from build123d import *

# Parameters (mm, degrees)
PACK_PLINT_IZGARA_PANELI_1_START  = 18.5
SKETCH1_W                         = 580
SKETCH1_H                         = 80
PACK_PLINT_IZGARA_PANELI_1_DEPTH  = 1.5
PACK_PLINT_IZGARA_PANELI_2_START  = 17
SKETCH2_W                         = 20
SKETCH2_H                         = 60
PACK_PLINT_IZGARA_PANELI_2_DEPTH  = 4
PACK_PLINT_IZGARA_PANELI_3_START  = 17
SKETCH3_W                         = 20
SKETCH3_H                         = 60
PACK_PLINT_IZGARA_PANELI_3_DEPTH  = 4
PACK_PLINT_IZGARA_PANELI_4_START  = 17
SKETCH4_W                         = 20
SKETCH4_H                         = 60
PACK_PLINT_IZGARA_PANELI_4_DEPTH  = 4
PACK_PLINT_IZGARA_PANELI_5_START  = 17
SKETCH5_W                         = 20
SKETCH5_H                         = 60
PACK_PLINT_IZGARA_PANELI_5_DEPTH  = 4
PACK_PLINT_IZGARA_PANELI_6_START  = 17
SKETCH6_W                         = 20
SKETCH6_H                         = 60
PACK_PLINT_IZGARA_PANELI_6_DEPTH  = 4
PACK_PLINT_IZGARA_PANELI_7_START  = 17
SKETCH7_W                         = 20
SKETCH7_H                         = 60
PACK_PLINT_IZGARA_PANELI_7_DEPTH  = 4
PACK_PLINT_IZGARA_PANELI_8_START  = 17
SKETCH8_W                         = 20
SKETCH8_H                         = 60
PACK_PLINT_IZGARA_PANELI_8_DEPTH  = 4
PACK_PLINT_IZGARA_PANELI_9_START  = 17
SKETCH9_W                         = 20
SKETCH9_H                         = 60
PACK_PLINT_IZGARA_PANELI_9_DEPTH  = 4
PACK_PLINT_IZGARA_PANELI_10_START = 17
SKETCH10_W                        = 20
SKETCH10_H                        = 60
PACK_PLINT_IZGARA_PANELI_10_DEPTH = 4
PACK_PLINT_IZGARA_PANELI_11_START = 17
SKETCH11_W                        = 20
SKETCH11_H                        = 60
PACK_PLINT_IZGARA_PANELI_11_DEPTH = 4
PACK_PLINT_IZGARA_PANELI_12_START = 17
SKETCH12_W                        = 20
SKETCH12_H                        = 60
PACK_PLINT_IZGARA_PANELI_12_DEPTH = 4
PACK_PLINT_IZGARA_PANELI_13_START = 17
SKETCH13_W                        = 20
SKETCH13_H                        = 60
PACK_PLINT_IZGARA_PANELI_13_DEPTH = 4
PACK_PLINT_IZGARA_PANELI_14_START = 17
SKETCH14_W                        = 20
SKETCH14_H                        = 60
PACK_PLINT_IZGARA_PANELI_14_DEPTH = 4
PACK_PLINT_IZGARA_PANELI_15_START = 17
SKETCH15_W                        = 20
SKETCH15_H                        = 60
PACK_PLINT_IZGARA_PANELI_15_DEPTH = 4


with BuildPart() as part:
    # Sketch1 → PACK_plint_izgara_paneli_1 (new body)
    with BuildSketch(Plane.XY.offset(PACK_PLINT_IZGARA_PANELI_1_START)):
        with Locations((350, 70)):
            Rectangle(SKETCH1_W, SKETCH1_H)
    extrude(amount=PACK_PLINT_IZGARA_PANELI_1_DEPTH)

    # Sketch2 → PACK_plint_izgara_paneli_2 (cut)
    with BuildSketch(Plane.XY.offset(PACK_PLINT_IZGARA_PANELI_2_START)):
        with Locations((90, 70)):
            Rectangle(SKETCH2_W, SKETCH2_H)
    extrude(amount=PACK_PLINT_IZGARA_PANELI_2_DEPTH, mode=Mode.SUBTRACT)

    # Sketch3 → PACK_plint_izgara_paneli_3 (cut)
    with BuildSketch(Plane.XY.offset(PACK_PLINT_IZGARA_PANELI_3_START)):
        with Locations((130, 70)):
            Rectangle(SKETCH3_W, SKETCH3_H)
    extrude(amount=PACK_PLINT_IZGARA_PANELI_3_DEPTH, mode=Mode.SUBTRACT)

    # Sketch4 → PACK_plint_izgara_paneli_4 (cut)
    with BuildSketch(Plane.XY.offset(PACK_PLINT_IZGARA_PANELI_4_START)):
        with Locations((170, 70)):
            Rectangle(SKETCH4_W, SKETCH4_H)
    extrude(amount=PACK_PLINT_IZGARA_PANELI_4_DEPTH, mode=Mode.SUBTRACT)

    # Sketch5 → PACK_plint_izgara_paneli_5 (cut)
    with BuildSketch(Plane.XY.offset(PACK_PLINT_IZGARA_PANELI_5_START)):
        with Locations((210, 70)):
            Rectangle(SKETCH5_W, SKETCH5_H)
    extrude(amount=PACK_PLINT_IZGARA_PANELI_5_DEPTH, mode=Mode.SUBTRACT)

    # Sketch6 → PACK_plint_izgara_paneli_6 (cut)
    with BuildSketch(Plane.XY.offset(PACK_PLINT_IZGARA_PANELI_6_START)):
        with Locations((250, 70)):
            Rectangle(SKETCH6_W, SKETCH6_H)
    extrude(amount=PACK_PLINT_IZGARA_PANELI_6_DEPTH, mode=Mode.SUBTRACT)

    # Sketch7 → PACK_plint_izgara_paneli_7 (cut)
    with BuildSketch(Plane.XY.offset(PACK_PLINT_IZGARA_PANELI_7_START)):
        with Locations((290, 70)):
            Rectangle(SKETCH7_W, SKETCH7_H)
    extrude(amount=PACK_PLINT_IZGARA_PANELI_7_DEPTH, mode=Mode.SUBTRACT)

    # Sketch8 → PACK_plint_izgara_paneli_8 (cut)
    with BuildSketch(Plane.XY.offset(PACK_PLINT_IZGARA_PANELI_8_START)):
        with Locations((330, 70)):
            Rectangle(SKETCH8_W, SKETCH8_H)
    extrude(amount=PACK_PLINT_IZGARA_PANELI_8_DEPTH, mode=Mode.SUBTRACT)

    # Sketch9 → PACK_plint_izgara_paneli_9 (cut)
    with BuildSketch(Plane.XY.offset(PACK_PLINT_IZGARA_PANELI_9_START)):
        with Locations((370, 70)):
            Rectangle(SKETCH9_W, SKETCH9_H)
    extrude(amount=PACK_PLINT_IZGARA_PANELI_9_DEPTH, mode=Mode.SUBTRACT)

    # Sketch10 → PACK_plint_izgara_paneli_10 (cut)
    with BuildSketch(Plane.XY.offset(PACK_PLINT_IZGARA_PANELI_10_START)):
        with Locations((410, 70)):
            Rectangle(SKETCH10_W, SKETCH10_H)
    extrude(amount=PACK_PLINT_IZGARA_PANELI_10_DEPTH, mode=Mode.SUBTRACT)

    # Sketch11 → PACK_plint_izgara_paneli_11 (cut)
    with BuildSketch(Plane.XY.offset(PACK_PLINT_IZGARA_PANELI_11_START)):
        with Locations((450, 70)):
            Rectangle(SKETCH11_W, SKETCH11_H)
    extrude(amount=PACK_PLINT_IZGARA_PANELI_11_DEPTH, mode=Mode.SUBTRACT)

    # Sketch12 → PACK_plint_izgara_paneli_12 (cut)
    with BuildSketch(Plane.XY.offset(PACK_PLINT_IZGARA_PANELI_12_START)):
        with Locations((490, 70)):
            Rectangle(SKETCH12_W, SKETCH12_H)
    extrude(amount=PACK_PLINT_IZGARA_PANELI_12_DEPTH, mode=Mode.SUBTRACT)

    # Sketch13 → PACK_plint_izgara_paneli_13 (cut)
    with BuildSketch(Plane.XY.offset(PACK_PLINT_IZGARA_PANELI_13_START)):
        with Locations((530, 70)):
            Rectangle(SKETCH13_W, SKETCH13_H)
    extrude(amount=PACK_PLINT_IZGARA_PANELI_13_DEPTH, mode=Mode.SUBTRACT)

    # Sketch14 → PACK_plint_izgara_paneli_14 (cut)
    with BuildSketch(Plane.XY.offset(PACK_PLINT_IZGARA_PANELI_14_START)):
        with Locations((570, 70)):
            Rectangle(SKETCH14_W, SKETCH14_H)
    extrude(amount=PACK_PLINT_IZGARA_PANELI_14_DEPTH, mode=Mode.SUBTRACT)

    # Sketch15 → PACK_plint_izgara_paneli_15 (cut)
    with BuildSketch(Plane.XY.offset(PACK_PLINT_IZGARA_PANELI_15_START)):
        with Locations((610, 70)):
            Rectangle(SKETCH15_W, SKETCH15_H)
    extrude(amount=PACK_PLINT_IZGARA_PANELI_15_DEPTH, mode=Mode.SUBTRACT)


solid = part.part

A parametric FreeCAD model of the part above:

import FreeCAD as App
import Part
import Sketcher
from FreeCAD import Vector
Q = App.Units.Quantity


def add_polygon(sketch, points):
    """Adds a closed chain of lines whose ends are joined by coincident constraints."""
    first, n = sketch.GeometryCount, len(points)
    for a, b in zip(points, points[1:] + points[:1]):
        sketch.addGeometry(Part.LineSegment(App.Vector(*a, 0), App.Vector(*b, 0)), False)
    for i in range(n):
        sketch.addConstraint(Sketcher.Constraint("Coincident", first + i, 2, first + (i + 1) % n, 1))

doc = App.newDocument("Part")
params = doc.addObject("Spreadsheet::Sheet", "Params")
for row, (alias, value) in enumerate([
    ("sketch1_width", "580 mm"),
    ("sketch1_height", "80 mm"),
    ("pad1_length", "1.5 mm"),
    ("sketch2_width", "20 mm"),
    ("sketch2_height", "60 mm"),
    ("pocket1_length", "4 mm"),
    ("sketch3_width", "20 mm"),
    ("sketch3_height", "60 mm"),
    ("pocket2_length", "4 mm"),
    ("sketch4_width", "20 mm"),
    ("sketch4_height", "60 mm"),
    ("pocket3_length", "4 mm"),
    ("sketch5_width", "20 mm"),
    ("sketch5_height", "60 mm"),
    ("pocket4_length", "4 mm"),
    ("sketch6_width", "20 mm"),
    ("sketch6_height", "60 mm"),
    ("pocket5_length", "4 mm"),
    ("sketch7_width", "20 mm"),
    ("sketch7_height", "60 mm"),
    ("pocket6_length", "4 mm"),
    ("sketch8_width", "20 mm"),
    ("sketch8_height", "60 mm"),
    ("pocket7_length", "4 mm"),
    ("sketch9_width", "20 mm"),
    ("sketch9_height", "60 mm"),
    ("pocket8_length", "4 mm"),
    ("sketch10_width", "20 mm"),
    ("sketch10_height", "60 mm"),
    ("pocket9_length", "4 mm"),
    ("sketch11_width", "20 mm"),
    ("sketch11_height", "60 mm"),
    ("pocket10_length", "4 mm"),
    ("sketch12_width", "20 mm"),
    ("sketch12_height", "60 mm"),
    ("pocket11_length", "4 mm"),
    ("sketch13_width", "20 mm"),
    ("sketch13_height", "60 mm"),
    ("pocket12_length", "4 mm"),
    ("sketch14_width", "20 mm"),
    ("sketch14_height", "60 mm"),
    ("pocket13_length", "4 mm"),
    ("sketch15_width", "20 mm"),
    ("sketch15_height", "60 mm"),
    ("pocket14_length", "4 mm"),
], start=1):
    params.set(f"A{row}", alias)
    params.set(f"B{row}", "=" + value)
    params.setAlias(f"B{row}", alias)

body = doc.addObject("PartDesign::Body", "Body")

# Sketch on XY plane
sketch1 = body.newObject("Sketcher::SketchObject", "Sketch")
sketch1.AttachmentSupport = (doc.getObject("XY_Plane"), [""])
sketch1.MapMode = "FlatFace"
sketch1.AttachmentOffset = App.Placement(Vector(0, 0, 18.5), App.Rotation())
add_polygon(sketch1, [(60, 110), (60, 30), (640, 30), (640, 110)])  # lines 0-3
sketch1.addConstraint([
    Sketcher.Constraint("Vertical", 0),
    Sketcher.Constraint("Horizontal", 1),
    Sketcher.Constraint("Vertical", 2),
    Sketcher.Constraint("Horizontal", 3),
    Sketcher.Constraint("DistanceX", 1, 1, 1, 2, Q("580 mm")),
    Sketcher.Constraint("DistanceY", 0, 2, 0, 1, Q("80 mm")),
    Sketcher.Constraint("DistanceX", -1, 1, 0, 2, Q("60 mm")),
    Sketcher.Constraint("DistanceY", -1, 1, 0, 2, Q("30 mm")),
])
sketch1.setExpression("Constraints[8]", "Params.sketch1_width")
sketch1.setExpression("Constraints[9]", "Params.sketch1_height")
pad1 = body.newObject("PartDesign::Pad", "Pad")
pad1.Profile = sketch1
pad1.setExpression("Length", "Params.pad1_length")

# Sketch on XY plane
sketch2 = body.newObject("Sketcher::SketchObject", "Sketch001")
sketch2.AttachmentSupport = (doc.getObject("XY_Plane"), [""])
sketch2.MapMode = "FlatFace"
sketch2.AttachmentOffset = App.Placement(Vector(0, 0, 17), App.Rotation())
add_polygon(sketch2, [(80, 100), (80, 40), (100, 40), (100, 100)])  # lines 0-3
sketch2.addConstraint([
    Sketcher.Constraint("Vertical", 0),
    Sketcher.Constraint("Horizontal", 1),
    Sketcher.Constraint("Vertical", 2),
    Sketcher.Constraint("Horizontal", 3),
    Sketcher.Constraint("DistanceX", 1, 1, 1, 2, Q("20 mm")),
    Sketcher.Constraint("DistanceY", 0, 2, 0, 1, Q("60 mm")),
    Sketcher.Constraint("DistanceX", -1, 1, 0, 2, Q("80 mm")),
    Sketcher.Constraint("DistanceY", -1, 1, 0, 2, Q("40 mm")),
])
sketch2.setExpression("Constraints[8]", "Params.sketch2_width")
sketch2.setExpression("Constraints[9]", "Params.sketch2_height")
pocket1 = body.newObject("PartDesign::Pocket", "Pocket")
pocket1.Profile = sketch2
pocket1.setExpression("Length", "Params.pocket1_length")
pocket1.Reversed = True

# Sketch on XY plane
sketch3 = body.newObject("Sketcher::SketchObject", "Sketch002")
sketch3.AttachmentSupport = (doc.getObject("XY_Plane"), [""])
sketch3.MapMode = "FlatFace"
sketch3.AttachmentOffset = App.Placement(Vector(0, 0, 17), App.Rotation())
add_polygon(sketch3, [(120, 100), (120, 40), (140, 40), (140, 100)])  # lines 0-3
sketch3.addConstraint([
    Sketcher.Constraint("Vertical", 0),
    Sketcher.Constraint("Horizontal", 1),
    Sketcher.Constraint("Vertical", 2),
    Sketcher.Constraint("Horizontal", 3),
    Sketcher.Constraint("DistanceX", 1, 1, 1, 2, Q("20 mm")),
    Sketcher.Constraint("DistanceY", 0, 2, 0, 1, Q("60 mm")),
    Sketcher.Constraint("DistanceX", -1, 1, 0, 2, Q("120 mm")),
    Sketcher.Constraint("DistanceY", -1, 1, 0, 2, Q("40 mm")),
])
sketch3.setExpression("Constraints[8]", "Params.sketch3_width")
sketch3.setExpression("Constraints[9]", "Params.sketch3_height")
pocket2 = body.newObject("PartDesign::Pocket", "Pocket001")
pocket2.Profile = sketch3
pocket2.setExpression("Length", "Params.pocket2_length")
pocket2.Reversed = True

# Sketch on XY plane
sketch4 = body.newObject("Sketcher::SketchObject", "Sketch003")
sketch4.AttachmentSupport = (doc.getObject("XY_Plane"), [""])
sketch4.MapMode = "FlatFace"
sketch4.AttachmentOffset = App.Placement(Vector(0, 0, 17), App.Rotation())
add_polygon(sketch4, [(160, 100), (160, 40), (180, 40), (180, 100)])  # lines 0-3
sketch4.addConstraint([
    Sketcher.Constraint("Vertical", 0),
    Sketcher.Constraint("Horizontal", 1),
    Sketcher.Constraint("Vertical", 2),
    Sketcher.Constraint("Horizontal", 3),
    Sketcher.Constraint("DistanceX", 1, 1, 1, 2, Q("20 mm")),
    Sketcher.Constraint("DistanceY", 0, 2, 0, 1, Q("60 mm")),
    Sketcher.Constraint("DistanceX", -1, 1, 0, 2, Q("160 mm")),
    Sketcher.Constraint("DistanceY", -1, 1, 0, 2, Q("40 mm")),
])
sketch4.setExpression("Constraints[8]", "Params.sketch4_width")
sketch4.setExpression("Constraints[9]", "Params.sketch4_height")
pocket3 = body.newObject("PartDesign::Pocket", "Pocket002")
pocket3.Profile = sketch4
pocket3.setExpression("Length", "Params.pocket3_length")
pocket3.Reversed = True

# Sketch on XY plane
sketch5 = body.newObject("Sketcher::SketchObject", "Sketch004")
sketch5.AttachmentSupport = (doc.getObject("XY_Plane"), [""])
sketch5.MapMode = "FlatFace"
sketch5.AttachmentOffset = App.Placement(Vector(0, 0, 17), App.Rotation())
add_polygon(sketch5, [(200, 100), (200, 40), (220, 40), (220, 100)])  # lines 0-3
sketch5.addConstraint([
    Sketcher.Constraint("Vertical", 0),
    Sketcher.Constraint("Horizontal", 1),
    Sketcher.Constraint("Vertical", 2),
    Sketcher.Constraint("Horizontal", 3),
    Sketcher.Constraint("DistanceX", 1, 1, 1, 2, Q("20 mm")),
    Sketcher.Constraint("DistanceY", 0, 2, 0, 1, Q("60 mm")),
    Sketcher.Constraint("DistanceX", -1, 1, 0, 2, Q("200 mm")),
    Sketcher.Constraint("DistanceY", -1, 1, 0, 2, Q("40 mm")),
])
sketch5.setExpression("Constraints[8]", "Params.sketch5_width")
sketch5.setExpression("Constraints[9]", "Params.sketch5_height")
pocket4 = body.newObject("PartDesign::Pocket", "Pocket003")
pocket4.Profile = sketch5
pocket4.setExpression("Length", "Params.pocket4_length")
pocket4.Reversed = True

# Sketch on XY plane
sketch6 = body.newObject("Sketcher::SketchObject", "Sketch005")
sketch6.AttachmentSupport = (doc.getObject("XY_Plane"), [""])
sketch6.MapMode = "FlatFace"
sketch6.AttachmentOffset = App.Placement(Vector(0, 0, 17), App.Rotation())
add_polygon(sketch6, [(240, 100), (240, 40), (260, 40), (260, 100)])  # lines 0-3
sketch6.addConstraint([
    Sketcher.Constraint("Vertical", 0),
    Sketcher.Constraint("Horizontal", 1),
    Sketcher.Constraint("Vertical", 2),
    Sketcher.Constraint("Horizontal", 3),
    Sketcher.Constraint("DistanceX", 1, 1, 1, 2, Q("20 mm")),
    Sketcher.Constraint("DistanceY", 0, 2, 0, 1, Q("60 mm")),
    Sketcher.Constraint("DistanceX", -1, 1, 0, 2, Q("240 mm")),
    Sketcher.Constraint("DistanceY", -1, 1, 0, 2, Q("40 mm")),
])
sketch6.setExpression("Constraints[8]", "Params.sketch6_width")
sketch6.setExpression("Constraints[9]", "Params.sketch6_height")
pocket5 = body.newObject("PartDesign::Pocket", "Pocket004")
pocket5.Profile = sketch6
pocket5.setExpression("Length", "Params.pocket5_length")
pocket5.Reversed = True

# Sketch on XY plane
sketch7 = body.newObject("Sketcher::SketchObject", "Sketch006")
sketch7.AttachmentSupport = (doc.getObject("XY_Plane"), [""])
sketch7.MapMode = "FlatFace"
sketch7.AttachmentOffset = App.Placement(Vector(0, 0, 17), App.Rotation())
add_polygon(sketch7, [(280, 100), (280, 40), (300, 40), (300, 100)])  # lines 0-3
sketch7.addConstraint([
    Sketcher.Constraint("Vertical", 0),
    Sketcher.Constraint("Horizontal", 1),
    Sketcher.Constraint("Vertical", 2),
    Sketcher.Constraint("Horizontal", 3),
    Sketcher.Constraint("DistanceX", 1, 1, 1, 2, Q("20 mm")),
    Sketcher.Constraint("DistanceY", 0, 2, 0, 1, Q("60 mm")),
    Sketcher.Constraint("DistanceX", -1, 1, 0, 2, Q("280 mm")),
    Sketcher.Constraint("DistanceY", -1, 1, 0, 2, Q("40 mm")),
])
sketch7.setExpression("Constraints[8]", "Params.sketch7_width")
sketch7.setExpression("Constraints[9]", "Params.sketch7_height")
pocket6 = body.newObject("PartDesign::Pocket", "Pocket005")
pocket6.Profile = sketch7
pocket6.setExpression("Length", "Params.pocket6_length")
pocket6.Reversed = True

# Sketch on XY plane
sketch8 = body.newObject("Sketcher::SketchObject", "Sketch007")
sketch8.AttachmentSupport = (doc.getObject("XY_Plane"), [""])
sketch8.MapMode = "FlatFace"
sketch8.AttachmentOffset = App.Placement(Vector(0, 0, 17), App.Rotation())
add_polygon(sketch8, [(320, 100), (320, 40), (340, 40), (340, 100)])  # lines 0-3
sketch8.addConstraint([
    Sketcher.Constraint("Vertical", 0),
    Sketcher.Constraint("Horizontal", 1),
    Sketcher.Constraint("Vertical", 2),
    Sketcher.Constraint("Horizontal", 3),
    Sketcher.Constraint("DistanceX", 1, 1, 1, 2, Q("20 mm")),
    Sketcher.Constraint("DistanceY", 0, 2, 0, 1, Q("60 mm")),
    Sketcher.Constraint("DistanceX", -1, 1, 0, 2, Q("320 mm")),
    Sketcher.Constraint("DistanceY", -1, 1, 0, 2, Q("40 mm")),
])
sketch8.setExpression("Constraints[8]", "Params.sketch8_width")
sketch8.setExpression("Constraints[9]", "Params.sketch8_height")
pocket7 = body.newObject("PartDesign::Pocket", "Pocket006")
pocket7.Profile = sketch8
pocket7.setExpression("Length", "Params.pocket7_length")
pocket7.Reversed = True

# Sketch on XY plane
sketch9 = body.newObject("Sketcher::SketchObject", "Sketch008")
sketch9.AttachmentSupport = (doc.getObject("XY_Plane"), [""])
sketch9.MapMode = "FlatFace"
sketch9.AttachmentOffset = App.Placement(Vector(0, 0, 17), App.Rotation())
add_polygon(sketch9, [(360, 100), (360, 40), (380, 40), (380, 100)])  # lines 0-3
sketch9.addConstraint([
    Sketcher.Constraint("Vertical", 0),
    Sketcher.Constraint("Horizontal", 1),
    Sketcher.Constraint("Vertical", 2),
    Sketcher.Constraint("Horizontal", 3),
    Sketcher.Constraint("DistanceX", 1, 1, 1, 2, Q("20 mm")),
    Sketcher.Constraint("DistanceY", 0, 2, 0, 1, Q("60 mm")),
    Sketcher.Constraint("DistanceX", -1, 1, 0, 2, Q("360 mm")),
    Sketcher.Constraint("DistanceY", -1, 1, 0, 2, Q("40 mm")),
])
sketch9.setExpression("Constraints[8]", "Params.sketch9_width")
sketch9.setExpression("Constraints[9]", "Params.sketch9_height")
pocket8 = body.newObject("PartDesign::Pocket", "Pocket007")
pocket8.Profile = sketch9
pocket8.setExpression("Length", "Params.pocket8_length")
pocket8.Reversed = True

# Sketch on XY plane
sketch10 = body.newObject("Sketcher::SketchObject", "Sketch009")
sketch10.AttachmentSupport = (doc.getObject("XY_Plane"), [""])
sketch10.MapMode = "FlatFace"
sketch10.AttachmentOffset = App.Placement(Vector(0, 0, 17), App.Rotation())
add_polygon(sketch10, [(400, 100), (400, 40), (420, 40), (420, 100)])  # lines 0-3
sketch10.addConstraint([
    Sketcher.Constraint("Vertical", 0),
    Sketcher.Constraint("Horizontal", 1),
    Sketcher.Constraint("Vertical", 2),
    Sketcher.Constraint("Horizontal", 3),
    Sketcher.Constraint("DistanceX", 1, 1, 1, 2, Q("20 mm")),
    Sketcher.Constraint("DistanceY", 0, 2, 0, 1, Q("60 mm")),
    Sketcher.Constraint("DistanceX", -1, 1, 0, 2, Q("400 mm")),
    Sketcher.Constraint("DistanceY", -1, 1, 0, 2, Q("40 mm")),
])
sketch10.setExpression("Constraints[8]", "Params.sketch10_width")
sketch10.setExpression("Constraints[9]", "Params.sketch10_height")
pocket9 = body.newObject("PartDesign::Pocket", "Pocket008")
pocket9.Profile = sketch10
pocket9.setExpression("Length", "Params.pocket9_length")
pocket9.Reversed = True

# Sketch on XY plane
sketch11 = body.newObject("Sketcher::SketchObject", "Sketch010")
sketch11.AttachmentSupport = (doc.getObject("XY_Plane"), [""])
sketch11.MapMode = "FlatFace"
sketch11.AttachmentOffset = App.Placement(Vector(0, 0, 17), App.Rotation())
add_polygon(sketch11, [(440, 100), (440, 40), (460, 40), (460, 100)])  # lines 0-3
sketch11.addConstraint([
    Sketcher.Constraint("Vertical", 0),
    Sketcher.Constraint("Horizontal", 1),
    Sketcher.Constraint("Vertical", 2),
    Sketcher.Constraint("Horizontal", 3),
    Sketcher.Constraint("DistanceX", 1, 1, 1, 2, Q("20 mm")),
    Sketcher.Constraint("DistanceY", 0, 2, 0, 1, Q("60 mm")),
    Sketcher.Constraint("DistanceX", -1, 1, 0, 2, Q("440 mm")),
    Sketcher.Constraint("DistanceY", -1, 1, 0, 2, Q("40 mm")),
])
sketch11.setExpression("Constraints[8]", "Params.sketch11_width")
sketch11.setExpression("Constraints[9]", "Params.sketch11_height")
pocket10 = body.newObject("PartDesign::Pocket", "Pocket009")
pocket10.Profile = sketch11
pocket10.setExpression("Length", "Params.pocket10_length")
pocket10.Reversed = True

# Sketch on XY plane
sketch12 = body.newObject("Sketcher::SketchObject", "Sketch011")
sketch12.AttachmentSupport = (doc.getObject("XY_Plane"), [""])
sketch12.MapMode = "FlatFace"
sketch12.AttachmentOffset = App.Placement(Vector(0, 0, 17), App.Rotation())
add_polygon(sketch12, [(480, 100), (480, 40), (500, 40), (500, 100)])  # lines 0-3
sketch12.addConstraint([
    Sketcher.Constraint("Vertical", 0),
    Sketcher.Constraint("Horizontal", 1),
    Sketcher.Constraint("Vertical", 2),
    Sketcher.Constraint("Horizontal", 3),
    Sketcher.Constraint("DistanceX", 1, 1, 1, 2, Q("20 mm")),
    Sketcher.Constraint("DistanceY", 0, 2, 0, 1, Q("60 mm")),
    Sketcher.Constraint("DistanceX", -1, 1, 0, 2, Q("480 mm")),
    Sketcher.Constraint("DistanceY", -1, 1, 0, 2, Q("40 mm")),
])
sketch12.setExpression("Constraints[8]", "Params.sketch12_width")
sketch12.setExpression("Constraints[9]", "Params.sketch12_height")
pocket11 = body.newObject("PartDesign::Pocket", "Pocket010")
pocket11.Profile = sketch12
pocket11.setExpression("Length", "Params.pocket11_length")
pocket11.Reversed = True

# Sketch on XY plane
sketch13 = body.newObject("Sketcher::SketchObject", "Sketch012")
sketch13.AttachmentSupport = (doc.getObject("XY_Plane"), [""])
sketch13.MapMode = "FlatFace"
sketch13.AttachmentOffset = App.Placement(Vector(0, 0, 17), App.Rotation())
add_polygon(sketch13, [(520, 100), (520, 40), (540, 40), (540, 100)])  # lines 0-3
sketch13.addConstraint([
    Sketcher.Constraint("Vertical", 0),
    Sketcher.Constraint("Horizontal", 1),
    Sketcher.Constraint("Vertical", 2),
    Sketcher.Constraint("Horizontal", 3),
    Sketcher.Constraint("DistanceX", 1, 1, 1, 2, Q("20 mm")),
    Sketcher.Constraint("DistanceY", 0, 2, 0, 1, Q("60 mm")),
    Sketcher.Constraint("DistanceX", -1, 1, 0, 2, Q("520 mm")),
    Sketcher.Constraint("DistanceY", -1, 1, 0, 2, Q("40 mm")),
])
sketch13.setExpression("Constraints[8]", "Params.sketch13_width")
sketch13.setExpression("Constraints[9]", "Params.sketch13_height")
pocket12 = body.newObject("PartDesign::Pocket", "Pocket011")
pocket12.Profile = sketch13
pocket12.setExpression("Length", "Params.pocket12_length")
pocket12.Reversed = True

# Sketch on XY plane
sketch14 = body.newObject("Sketcher::SketchObject", "Sketch013")
sketch14.AttachmentSupport = (doc.getObject("XY_Plane"), [""])
sketch14.MapMode = "FlatFace"
sketch14.AttachmentOffset = App.Placement(Vector(0, 0, 17), App.Rotation())
add_polygon(sketch14, [(560, 100), (560, 40), (580, 40), (580, 100)])  # lines 0-3
sketch14.addConstraint([
    Sketcher.Constraint("Vertical", 0),
    Sketcher.Constraint("Horizontal", 1),
    Sketcher.Constraint("Vertical", 2),
    Sketcher.Constraint("Horizontal", 3),
    Sketcher.Constraint("DistanceX", 1, 1, 1, 2, Q("20 mm")),
    Sketcher.Constraint("DistanceY", 0, 2, 0, 1, Q("60 mm")),
    Sketcher.Constraint("DistanceX", -1, 1, 0, 2, Q("560 mm")),
    Sketcher.Constraint("DistanceY", -1, 1, 0, 2, Q("40 mm")),
])
sketch14.setExpression("Constraints[8]", "Params.sketch14_width")
sketch14.setExpression("Constraints[9]", "Params.sketch14_height")
pocket13 = body.newObject("PartDesign::Pocket", "Pocket012")
pocket13.Profile = sketch14
pocket13.setExpression("Length", "Params.pocket13_length")
pocket13.Reversed = True

# Sketch on XY plane
sketch15 = body.newObject("Sketcher::SketchObject", "Sketch014")
sketch15.AttachmentSupport = (doc.getObject("XY_Plane"), [""])
sketch15.MapMode = "FlatFace"
sketch15.AttachmentOffset = App.Placement(Vector(0, 0, 17), App.Rotation())
add_polygon(sketch15, [(600, 100), (600, 40), (620, 40), (620, 100)])  # lines 0-3
sketch15.addConstraint([
    Sketcher.Constraint("Vertical", 0),
    Sketcher.Constraint("Horizontal", 1),
    Sketcher.Constraint("Vertical", 2),
    Sketcher.Constraint("Horizontal", 3),
    Sketcher.Constraint("DistanceX", 1, 1, 1, 2, Q("20 mm")),
    Sketcher.Constraint("DistanceY", 0, 2, 0, 1, Q("60 mm")),
    Sketcher.Constraint("DistanceX", -1, 1, 0, 2, Q("600 mm")),
    Sketcher.Constraint("DistanceY", -1, 1, 0, 2, Q("40 mm")),
])
sketch15.setExpression("Constraints[8]", "Params.sketch15_width")
sketch15.setExpression("Constraints[9]", "Params.sketch15_height")
pocket14 = body.newObject("PartDesign::Pocket", "Pocket013")
pocket14.Profile = sketch15
pocket14.setExpression("Length", "Params.pocket14_length")
pocket14.Reversed = True

doc.recompute()
